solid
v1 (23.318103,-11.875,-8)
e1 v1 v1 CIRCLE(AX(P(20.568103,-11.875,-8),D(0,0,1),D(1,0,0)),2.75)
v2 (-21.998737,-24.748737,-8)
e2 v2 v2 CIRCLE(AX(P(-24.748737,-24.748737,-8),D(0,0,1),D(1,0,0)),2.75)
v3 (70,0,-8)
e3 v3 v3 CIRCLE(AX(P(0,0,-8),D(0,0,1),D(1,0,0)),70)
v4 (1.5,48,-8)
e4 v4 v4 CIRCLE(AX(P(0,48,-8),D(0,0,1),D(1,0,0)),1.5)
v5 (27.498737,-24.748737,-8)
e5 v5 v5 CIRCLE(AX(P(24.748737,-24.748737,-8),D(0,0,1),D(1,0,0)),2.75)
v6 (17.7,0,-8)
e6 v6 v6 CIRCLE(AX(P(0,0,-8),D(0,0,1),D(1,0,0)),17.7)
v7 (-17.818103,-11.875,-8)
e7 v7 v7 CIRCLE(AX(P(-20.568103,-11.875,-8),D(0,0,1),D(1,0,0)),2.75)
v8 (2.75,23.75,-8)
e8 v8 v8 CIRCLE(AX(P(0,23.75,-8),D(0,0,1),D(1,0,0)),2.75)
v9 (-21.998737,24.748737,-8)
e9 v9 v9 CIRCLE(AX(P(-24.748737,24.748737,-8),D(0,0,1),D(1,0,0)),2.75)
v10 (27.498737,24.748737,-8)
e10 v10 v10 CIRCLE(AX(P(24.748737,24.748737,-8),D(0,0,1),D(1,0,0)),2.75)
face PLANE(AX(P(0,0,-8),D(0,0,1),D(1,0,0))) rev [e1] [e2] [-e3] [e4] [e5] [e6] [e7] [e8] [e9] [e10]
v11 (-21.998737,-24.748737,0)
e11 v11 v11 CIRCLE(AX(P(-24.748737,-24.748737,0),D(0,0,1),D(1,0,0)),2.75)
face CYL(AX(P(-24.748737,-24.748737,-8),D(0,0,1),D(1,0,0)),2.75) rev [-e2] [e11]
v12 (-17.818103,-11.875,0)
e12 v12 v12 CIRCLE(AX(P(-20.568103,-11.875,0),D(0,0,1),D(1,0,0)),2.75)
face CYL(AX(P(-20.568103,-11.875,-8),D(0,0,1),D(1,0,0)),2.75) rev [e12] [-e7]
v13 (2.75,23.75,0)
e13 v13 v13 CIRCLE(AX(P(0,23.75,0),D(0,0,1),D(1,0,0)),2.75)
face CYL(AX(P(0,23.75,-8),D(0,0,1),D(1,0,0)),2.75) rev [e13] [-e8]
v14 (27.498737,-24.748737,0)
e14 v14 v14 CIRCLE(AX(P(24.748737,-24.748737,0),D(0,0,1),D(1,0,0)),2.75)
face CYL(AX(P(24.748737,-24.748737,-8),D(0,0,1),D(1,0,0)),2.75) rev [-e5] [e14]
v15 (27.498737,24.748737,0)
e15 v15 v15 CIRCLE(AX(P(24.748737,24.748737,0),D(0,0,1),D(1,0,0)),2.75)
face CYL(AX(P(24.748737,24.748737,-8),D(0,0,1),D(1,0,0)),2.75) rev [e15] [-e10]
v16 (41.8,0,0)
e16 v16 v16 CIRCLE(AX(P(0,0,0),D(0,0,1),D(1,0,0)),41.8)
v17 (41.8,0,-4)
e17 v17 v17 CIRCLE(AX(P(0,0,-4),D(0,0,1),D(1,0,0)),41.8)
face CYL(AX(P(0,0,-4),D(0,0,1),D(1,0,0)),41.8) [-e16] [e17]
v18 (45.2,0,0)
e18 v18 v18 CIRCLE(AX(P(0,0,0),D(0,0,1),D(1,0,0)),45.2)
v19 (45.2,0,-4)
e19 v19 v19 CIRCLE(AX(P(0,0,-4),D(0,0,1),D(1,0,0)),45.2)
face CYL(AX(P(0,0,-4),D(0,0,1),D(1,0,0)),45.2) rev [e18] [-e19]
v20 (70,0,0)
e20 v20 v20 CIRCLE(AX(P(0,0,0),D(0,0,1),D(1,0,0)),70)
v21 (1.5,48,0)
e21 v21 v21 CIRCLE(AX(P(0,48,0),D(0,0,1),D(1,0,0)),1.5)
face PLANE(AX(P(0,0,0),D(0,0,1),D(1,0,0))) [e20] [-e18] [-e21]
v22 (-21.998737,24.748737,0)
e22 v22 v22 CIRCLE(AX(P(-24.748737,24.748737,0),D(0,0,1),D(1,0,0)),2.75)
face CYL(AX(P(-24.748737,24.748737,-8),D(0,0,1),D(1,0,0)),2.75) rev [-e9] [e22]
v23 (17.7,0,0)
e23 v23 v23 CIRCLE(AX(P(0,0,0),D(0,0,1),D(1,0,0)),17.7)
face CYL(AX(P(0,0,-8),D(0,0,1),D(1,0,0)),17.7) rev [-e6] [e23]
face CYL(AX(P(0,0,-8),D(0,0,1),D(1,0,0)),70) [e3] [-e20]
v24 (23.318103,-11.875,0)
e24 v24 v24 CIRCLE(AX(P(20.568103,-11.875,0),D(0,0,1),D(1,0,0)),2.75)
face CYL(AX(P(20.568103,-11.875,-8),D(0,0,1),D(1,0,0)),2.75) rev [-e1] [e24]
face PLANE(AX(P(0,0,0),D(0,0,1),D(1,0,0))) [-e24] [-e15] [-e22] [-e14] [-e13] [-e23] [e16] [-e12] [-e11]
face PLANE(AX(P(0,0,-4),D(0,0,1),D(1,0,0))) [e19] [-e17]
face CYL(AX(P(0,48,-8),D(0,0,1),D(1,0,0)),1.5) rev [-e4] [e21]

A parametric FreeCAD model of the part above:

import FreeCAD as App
import Part
import Sketcher
from FreeCAD import Vector

doc = App.newDocument("Part")
body = doc.addObject("PartDesign::Body", "Body")

# Sketch on XY plane
sketch1 = body.newObject("Sketcher::SketchObject", "Sketch")
sketch1.AttachmentSupport = (doc.getObject("XY_Plane"), [""])
sketch1.MapMode = "FlatFace"
sketch1.addGeometry(Part.Circle(Vector(0, 0, 0), Vector(0, 0, 1), 70), False)
sketch1.addGeometry(Part.Circle(Vector(-24.748737, -24.748737, 0), Vector(0, 0, 1), 2.75), False)
sketch1.addGeometry(Part.Circle(Vector(-20.568103, -11.875, 0), Vector(0, 0, 1), 2.75), False)
sketch1.addGeometry(Part.Circle(Vector(0, 0, 0), Vector(0, 0, 1), 17.7), False)
sketch1.addGeometry(Part.Circle(Vector(24.748737, -24.748737, 0), Vector(0, 0, 1), 2.75), False)
sketch1.addGeometry(Part.Circle(Vector(20.568103, -11.875, 0), Vector(0, 0, 1), 2.75), False)
sketch1.addGeometry(Part.Circle(Vector(-24.748737, 24.748737, 0), Vector(0, 0, 1), 2.75), False)
sketch1.addGeometry(Part.Circle(Vector(0, 23.75, 0), Vector(0, 0, 1), 2.75), False)
sketch1.addGeometry(Part.Circle(Vector(0, 48, 0), Vector(0, 0, 1), 1.5), False)
sketch1.addGeometry(Part.Circle(Vector(24.748737, 24.748737, 0), Vector(0, 0, 1), 2.75), False)
sketch1.addConstraint(Sketcher.Constraint("Coincident", 0, 3, -1, 1))
sketch1.addConstraint(Sketcher.Constraint("Coincident", 3, 3, -1, 1))
sketch1.addConstraint(Sketcher.Constraint("Equal", 1, 2))
sketch1.addConstraint(Sketcher.Constraint("Equal", 2, 4))
sketch1.addConstraint(Sketcher.Constraint("Equal", 4, 5))
sketch1.addConstraint(Sketcher.Constraint("Equal", 5, 6))
sketch1.addConstraint(Sketcher.Constraint("Equal", 6, 7))
sketch1.addConstraint(Sketcher.Constraint("Equal", 7, 9))
sketch1.addConstraint(Sketcher.Constraint("Symmetric", 4, 3, 6, 3, -1, 1))
sketch1.addConstraint(Sketcher.Constraint("Symmetric", 1, 3, 9, 3, -1, 1))
sketch1.addConstraint(Sketcher.Constraint("Symmetric", 1, 3, 4, 3, -2))
sketch1.addConstraint(Sketcher.Constraint("Symmetric", 2, 3, 5, 3, -2))
sketch1.addConstraint(Sketcher.Constraint("PointOnObject", 7, 3, -2))
sketch1.addConstraint(Sketcher.Constraint("PointOnObject", 8, 3, -2))
sketch1.addConstraint(Sketcher.Constraint("Diameter", 0, 140.0))
sketch1.addConstraint(Sketcher.Constraint("Diameter", 8, 3.0))
sketch1.addConstraint(Sketcher.Constraint("Diameter", 1, 5.5))
sketch1.addConstraint(Sketcher.Constraint("Diameter", 3, 35.4))
sketch1.addConstraint(Sketcher.Constraint("DistanceY", -1, 1, 8, 3, 48.0))
sketch1.addConstraint(Sketcher.Constraint("DistanceY", -1, 1, 7, 3, 23.75))
sketch1.addConstraint(Sketcher.Constraint("DistanceY", 2, 3, -1, 1, 11.875))
sketch1.addConstraint(Sketcher.Constraint("DistanceX", 2, 3, 4, 3, 45.316841))
sketch1.addConstraint(Sketcher.Constraint("DistanceX", 1, 3, -1, 1, 24.748737))
sketch1.addConstraint(Sketcher.Constraint("DistanceY", 1, 3, -1, 1, 24.748737))
pad1 = body.newObject("PartDesign::Pad", "Pad")
pad1.Profile = sketch1
pad1.Length = 8
pad1.Reversed = True

# Sketch on XY plane
sketch2 = body.newObject("Sketcher::SketchObject", "Sketch001")
sketch2.AttachmentSupport = (doc.getObject("XY_Plane"), [""])
sketch2.MapMode = "FlatFace"
sketch2.addGeometry(Part.Circle(Vector(0, 0, 0), Vector(0, 0, 1), 45.2), False)
sketch2.addGeometry(Part.Circle(Vector(0, 0, 0), Vector(0, 0, 1), 41.8), False)
sketch2.addConstraint(Sketcher.Constraint("Coincident", 0, 3, -1, 1))
sketch2.addConstraint(Sketcher.Constraint("Coincident", 1, 3, -1, 1))
sketch2.addConstraint(Sketcher.Constraint("Diameter", 0, 90.4))
sketch2.addConstraint(Sketcher.Constraint("Diameter", 1, 83.6))
pocket1 = body.newObject("PartDesign::Pocket", "Pocket")
pocket1.Profile = sketch2
pocket1.Length = 4

doc.recompute()
